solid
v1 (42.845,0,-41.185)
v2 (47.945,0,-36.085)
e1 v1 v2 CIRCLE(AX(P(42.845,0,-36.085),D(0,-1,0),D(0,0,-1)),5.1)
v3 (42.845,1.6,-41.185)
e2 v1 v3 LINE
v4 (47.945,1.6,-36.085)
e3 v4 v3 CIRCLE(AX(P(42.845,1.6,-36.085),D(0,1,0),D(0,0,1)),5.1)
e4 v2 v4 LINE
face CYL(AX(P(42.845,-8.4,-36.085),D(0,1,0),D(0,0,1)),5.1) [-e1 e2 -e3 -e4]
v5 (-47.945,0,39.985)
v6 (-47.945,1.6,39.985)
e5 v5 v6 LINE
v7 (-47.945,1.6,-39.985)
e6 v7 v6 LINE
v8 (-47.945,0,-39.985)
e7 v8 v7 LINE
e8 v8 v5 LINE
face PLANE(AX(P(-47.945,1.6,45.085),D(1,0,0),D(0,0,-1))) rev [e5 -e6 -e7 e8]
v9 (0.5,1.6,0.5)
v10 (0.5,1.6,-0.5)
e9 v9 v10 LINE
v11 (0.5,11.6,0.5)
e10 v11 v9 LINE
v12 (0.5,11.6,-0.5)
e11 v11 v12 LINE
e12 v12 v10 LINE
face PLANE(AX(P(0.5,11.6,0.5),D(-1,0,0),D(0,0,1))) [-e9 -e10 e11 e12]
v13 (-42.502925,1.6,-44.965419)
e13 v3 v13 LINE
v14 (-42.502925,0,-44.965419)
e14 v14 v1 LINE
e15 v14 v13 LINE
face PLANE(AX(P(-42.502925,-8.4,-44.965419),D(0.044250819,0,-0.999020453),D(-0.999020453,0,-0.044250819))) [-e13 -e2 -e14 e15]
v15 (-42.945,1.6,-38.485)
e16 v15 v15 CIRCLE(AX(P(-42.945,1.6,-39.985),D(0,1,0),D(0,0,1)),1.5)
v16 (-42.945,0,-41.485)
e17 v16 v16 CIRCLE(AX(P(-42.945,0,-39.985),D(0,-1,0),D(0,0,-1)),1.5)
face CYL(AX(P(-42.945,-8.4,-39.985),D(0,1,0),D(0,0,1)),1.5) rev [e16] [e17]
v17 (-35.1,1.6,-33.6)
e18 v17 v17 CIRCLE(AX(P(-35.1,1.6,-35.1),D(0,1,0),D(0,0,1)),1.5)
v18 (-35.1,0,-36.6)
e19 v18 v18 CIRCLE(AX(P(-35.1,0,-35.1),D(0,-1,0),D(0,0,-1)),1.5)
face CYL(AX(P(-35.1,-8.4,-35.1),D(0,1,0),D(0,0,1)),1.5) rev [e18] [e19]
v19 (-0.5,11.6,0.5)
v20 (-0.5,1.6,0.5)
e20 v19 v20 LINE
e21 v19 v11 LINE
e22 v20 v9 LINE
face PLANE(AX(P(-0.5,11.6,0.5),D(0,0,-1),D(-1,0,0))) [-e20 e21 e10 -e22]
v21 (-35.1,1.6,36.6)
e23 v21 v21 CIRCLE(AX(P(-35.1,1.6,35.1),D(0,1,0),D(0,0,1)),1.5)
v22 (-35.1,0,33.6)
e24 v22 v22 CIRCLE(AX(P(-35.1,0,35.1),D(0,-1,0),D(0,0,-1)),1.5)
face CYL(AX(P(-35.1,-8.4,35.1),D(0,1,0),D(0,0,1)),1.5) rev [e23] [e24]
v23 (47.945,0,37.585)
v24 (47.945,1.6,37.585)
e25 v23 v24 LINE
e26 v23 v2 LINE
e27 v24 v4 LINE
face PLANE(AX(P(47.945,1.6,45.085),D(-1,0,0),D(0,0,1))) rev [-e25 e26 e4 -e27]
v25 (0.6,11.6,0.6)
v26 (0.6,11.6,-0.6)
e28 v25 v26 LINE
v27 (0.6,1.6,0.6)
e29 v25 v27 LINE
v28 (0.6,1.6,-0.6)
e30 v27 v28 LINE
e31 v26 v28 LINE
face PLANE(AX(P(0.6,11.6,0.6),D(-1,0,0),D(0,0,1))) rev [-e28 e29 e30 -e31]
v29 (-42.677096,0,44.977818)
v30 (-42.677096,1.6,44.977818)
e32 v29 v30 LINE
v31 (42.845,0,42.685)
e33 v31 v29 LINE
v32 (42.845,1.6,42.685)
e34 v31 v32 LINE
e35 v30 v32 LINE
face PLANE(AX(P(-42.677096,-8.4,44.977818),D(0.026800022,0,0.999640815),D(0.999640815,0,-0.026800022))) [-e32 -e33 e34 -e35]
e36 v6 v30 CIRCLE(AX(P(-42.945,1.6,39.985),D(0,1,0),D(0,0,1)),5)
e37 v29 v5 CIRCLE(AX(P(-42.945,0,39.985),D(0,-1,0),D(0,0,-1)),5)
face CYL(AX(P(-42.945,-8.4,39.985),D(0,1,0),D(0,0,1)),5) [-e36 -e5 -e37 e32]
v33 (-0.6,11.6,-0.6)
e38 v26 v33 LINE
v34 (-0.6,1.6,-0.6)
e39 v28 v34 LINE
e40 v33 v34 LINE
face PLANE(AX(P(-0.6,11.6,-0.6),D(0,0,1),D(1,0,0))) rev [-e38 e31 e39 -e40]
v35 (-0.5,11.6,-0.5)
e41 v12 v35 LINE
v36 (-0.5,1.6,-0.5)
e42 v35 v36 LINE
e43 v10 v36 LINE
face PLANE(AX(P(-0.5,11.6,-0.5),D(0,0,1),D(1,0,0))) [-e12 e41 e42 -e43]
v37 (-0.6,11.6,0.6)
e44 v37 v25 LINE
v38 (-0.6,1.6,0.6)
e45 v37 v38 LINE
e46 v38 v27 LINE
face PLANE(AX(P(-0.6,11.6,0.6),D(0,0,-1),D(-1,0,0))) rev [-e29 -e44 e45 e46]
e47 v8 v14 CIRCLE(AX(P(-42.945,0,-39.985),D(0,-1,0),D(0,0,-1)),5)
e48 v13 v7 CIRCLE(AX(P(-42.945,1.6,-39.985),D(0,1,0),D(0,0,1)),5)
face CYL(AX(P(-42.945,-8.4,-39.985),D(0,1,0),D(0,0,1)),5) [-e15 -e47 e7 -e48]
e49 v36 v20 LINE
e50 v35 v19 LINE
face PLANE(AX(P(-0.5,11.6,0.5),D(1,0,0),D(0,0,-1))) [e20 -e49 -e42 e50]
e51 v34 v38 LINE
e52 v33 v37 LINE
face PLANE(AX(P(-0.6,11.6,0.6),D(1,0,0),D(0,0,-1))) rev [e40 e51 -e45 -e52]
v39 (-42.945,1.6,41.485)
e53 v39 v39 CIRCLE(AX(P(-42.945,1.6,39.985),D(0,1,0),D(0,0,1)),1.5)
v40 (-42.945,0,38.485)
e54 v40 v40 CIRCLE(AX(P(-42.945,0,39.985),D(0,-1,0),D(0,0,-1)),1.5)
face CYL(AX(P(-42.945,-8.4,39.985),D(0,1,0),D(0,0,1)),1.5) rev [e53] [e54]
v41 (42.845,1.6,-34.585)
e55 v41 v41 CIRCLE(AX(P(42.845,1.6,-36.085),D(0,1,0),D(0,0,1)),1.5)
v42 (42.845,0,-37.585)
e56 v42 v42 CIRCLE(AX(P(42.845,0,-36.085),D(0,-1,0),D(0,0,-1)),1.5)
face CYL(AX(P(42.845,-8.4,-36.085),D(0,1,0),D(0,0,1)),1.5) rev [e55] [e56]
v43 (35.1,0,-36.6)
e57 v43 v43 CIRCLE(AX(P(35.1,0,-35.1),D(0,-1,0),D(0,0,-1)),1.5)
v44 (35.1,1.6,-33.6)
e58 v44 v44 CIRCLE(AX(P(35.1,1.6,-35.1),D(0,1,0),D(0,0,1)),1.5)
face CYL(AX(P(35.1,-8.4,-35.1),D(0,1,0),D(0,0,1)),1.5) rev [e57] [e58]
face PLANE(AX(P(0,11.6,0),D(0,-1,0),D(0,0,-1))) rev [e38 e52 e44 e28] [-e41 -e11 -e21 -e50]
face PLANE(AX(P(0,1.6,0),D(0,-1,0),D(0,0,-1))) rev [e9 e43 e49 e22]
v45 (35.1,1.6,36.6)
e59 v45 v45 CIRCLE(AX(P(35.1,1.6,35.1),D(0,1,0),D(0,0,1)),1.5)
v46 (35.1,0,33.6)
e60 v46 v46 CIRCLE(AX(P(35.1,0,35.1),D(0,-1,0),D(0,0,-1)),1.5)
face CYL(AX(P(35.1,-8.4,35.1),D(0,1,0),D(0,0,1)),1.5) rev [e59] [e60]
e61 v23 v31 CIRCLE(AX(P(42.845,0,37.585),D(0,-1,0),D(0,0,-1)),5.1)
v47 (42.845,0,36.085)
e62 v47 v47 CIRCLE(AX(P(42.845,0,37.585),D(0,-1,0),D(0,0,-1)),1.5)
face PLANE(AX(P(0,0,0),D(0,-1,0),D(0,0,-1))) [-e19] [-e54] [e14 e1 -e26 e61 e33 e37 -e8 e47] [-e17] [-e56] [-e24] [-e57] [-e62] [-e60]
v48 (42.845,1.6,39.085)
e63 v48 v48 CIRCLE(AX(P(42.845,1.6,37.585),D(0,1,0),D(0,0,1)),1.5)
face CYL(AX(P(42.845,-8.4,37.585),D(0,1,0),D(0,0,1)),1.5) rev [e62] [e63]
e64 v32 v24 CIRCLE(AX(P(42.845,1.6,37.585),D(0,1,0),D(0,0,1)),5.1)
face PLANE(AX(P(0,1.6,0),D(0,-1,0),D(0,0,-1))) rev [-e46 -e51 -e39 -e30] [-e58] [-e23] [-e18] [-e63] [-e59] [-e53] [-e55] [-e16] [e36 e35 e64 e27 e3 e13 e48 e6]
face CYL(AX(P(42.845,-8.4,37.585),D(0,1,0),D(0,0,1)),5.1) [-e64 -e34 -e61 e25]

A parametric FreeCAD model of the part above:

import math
import FreeCAD as App
import Part
import Sketcher

V = App.Vector

doc = App.newDocument("Part")
body = doc.addObject("PartDesign::Body", "Body")

# Sketch on XZ plane
sketch1 = body.newObject("Sketcher::SketchObject", "Sketch")
sketch1.AttachmentSupport = (doc.getObject("XZ_Plane"), [""])
sketch1.MapMode = "FlatFace"
sketch1.addGeometry([
    Part.LineSegment(V(-47.945, -45.085, 0), V(-47.945, 45.085, 0)),
    Part.LineSegment(V(-47.945, 45.085, 0), V(47.945, 45.085, 0)),
    Part.LineSegment(V(47.945, 45.085, 0), V(47.945, -45.085, 0)),
    Part.LineSegment(V(47.945, -45.085, 0), V(-47.945, -45.085, 0)),
], False)
sketch1.addConstraint([
    Sketcher.Constraint("Coincident", 0, 2, 1, 1),
    Sketcher.Constraint("Coincident", 1, 2, 2, 1),
    Sketcher.Constraint("Coincident", 2, 2, 3, 1),
    Sketcher.Constraint("Coincident", 3, 2, 0, 1),
    Sketcher.Constraint("Vertical", 0),
    Sketcher.Constraint("Horizontal", 1),
    Sketcher.Constraint("Vertical", 2),
    Sketcher.Constraint("Horizontal", 3),
    Sketcher.Constraint("Symmetric", 0, 2, 2, 2, -1, 1),
    Sketcher.Constraint("DistanceX", 1, 1, 1, 2, 95.89),
    Sketcher.Constraint("DistanceY", 0, 1, 0, 2, 90.17),
])
pad1 = body.newObject("PartDesign::Pad", "Pad")
pad1.Profile = sketch1
pad1.Length = 1.6
pad1.Reversed = True

# Sketch on XZ plane
sketch2 = body.newObject("Sketcher::SketchObject", "Sketch001")
sketch2.AttachmentSupport = (doc.getObject("XZ_Plane"), [""])
sketch2.MapMode = "FlatFace"
sketch2.AttachmentOffset = App.Placement(V(0, 0, -1.6), App.Rotation())
sketch2.addGeometry([
    Part.Circle(V(42.845, -36.085, 0), V(0, 0, 1), 1.5),
    Part.Circle(V(42.845, 37.585, 0), V(0, 0, 1), 1.5),
    Part.Circle(V(-42.945, 39.985, 0), V(0, 0, 1), 1.5),
    Part.Circle(V(-42.945, -39.985, 0), V(0, 0, 1), 1.5),
], False)
sketch2.addConstraint([
    Sketcher.Constraint("Equal", 0, 1),
    Sketcher.Constraint("Equal", 1, 2),
    Sketcher.Constraint("Equal", 2, 3),
    Sketcher.Constraint("Symmetric", 2, 3, 3, 3, -1),
    Sketcher.Constraint("Vertical", 0, 3, 1, 3),
    Sketcher.Constraint("Diameter", 0, 3.0),
    Sketcher.Constraint("DistanceY", 1, 3, 2, 3, 2.4),
    Sketcher.Constraint("DistanceY", 3, 3, 0, 3, 3.9),
    Sketcher.Constraint("DistanceY", 0, 3, 1, 3, 73.67),
    Sketcher.Constraint("DistanceX", 2, 3, 1, 3, 85.79),
    Sketcher.Constraint("DistanceX", -1, 1, 0, 3, 42.845),
])
pocket1 = body.newObject("PartDesign::Pocket", "Pocket")
pocket1.Profile = sketch2
pocket1.Length = 10
pocket1.Reversed = True

# Sketch on XZ plane
sketch3 = body.newObject("Sketcher::SketchObject", "Sketch002")
sketch3.AttachmentSupport = (doc.getObject("XZ_Plane"), [""])
sketch3.MapMode = "FlatFace"
sketch3.AttachmentOffset = App.Placement(V(0, 0, -1.6), App.Rotation())
sketch3.addGeometry([
    Part.LineSegment(V(-0.6, -0.6, 0), V(-0.6, 0.6, 0)),  # 0
    Part.LineSegment(V(-0.6, 0.6, 0), V(0.6, 0.6, 0)),  # 1
    Part.LineSegment(V(0.6, 0.6, 0), V(0.6, -0.6, 0)),  # 2
    Part.LineSegment(V(0.6, -0.6, 0), V(-0.6, -0.6, 0)),  # 3
    Part.LineSegment(V(0.5, 0.5, 0), V(-0.5, 0.5, 0)),  # 4
    Part.LineSegment(V(-0.5, 0.5, 0), V(-0.5, -0.5, 0)),  # 5
    Part.LineSegment(V(-0.5, -0.5, 0), V(0.5, -0.5, 0)),  # 6
    Part.LineSegment(V(0.5, -0.5, 0), V(0.5, 0.5, 0)),  # 7
], False)
sketch3.addConstraint([
    Sketcher.Constraint("Coincident", 0, 2, 1, 1),
    Sketcher.Constraint("Coincident", 1, 2, 2, 1),
    Sketcher.Constraint("Coincident", 2, 2, 3, 1),
    Sketcher.Constraint("Coincident", 3, 2, 0, 1),
    Sketcher.Constraint("Coincident", 4, 2, 5, 1),
    Sketcher.Constraint("Coincident", 5, 2, 6, 1),
    Sketcher.Constraint("Coincident", 6, 2, 7, 1),
    Sketcher.Constraint("Coincident", 7, 2, 4, 1),
    Sketcher.Constraint("Vertical", 0),
    Sketcher.Constraint("Horizontal", 1),
    Sketcher.Constraint("Vertical", 2),
    Sketcher.Constraint("Horizontal", 3),
    Sketcher.Constraint("Horizontal", 4),
    Sketcher.Constraint("Vertical", 5),
    Sketcher.Constraint("Horizontal", 6),
    Sketcher.Constraint("Vertical", 7),
    Sketcher.Constraint("Symmetric", 0, 2, 2, 2, -1, 1),
    Sketcher.Constraint("Symmetric", 4, 2, 6, 2, -1, 1),
    Sketcher.Constraint("Equal", 3, 0),
    Sketcher.Constraint("Equal", 6, 5),
    Sketcher.Constraint("DistanceX", 4, 2, 4, 1, 1.0),
    Sketcher.Constraint("DistanceX", 1, 1, 1, 2, 1.2),
])
pad2 = body.newObject("PartDesign::Pad", "Pad001")
pad2.Profile = sketch3
pad2.Length = 10
pad2.Reversed = True

# Sketch on XZ plane
sketch4 = body.newObject("Sketcher::SketchObject", "Sketch003")
sketch4.AttachmentSupport = (doc.getObject("XZ_Plane"), [""])
sketch4.MapMode = "FlatFace"
sketch4.AttachmentOffset = App.Placement(V(0, 0, -1.6), App.Rotation())
sketch4.addGeometry([
    Part.LineSegment(V(-62.159, -59.299, 0), V(-62.159, 59.299, 0)),  # 0
    Part.LineSegment(V(-62.159, 59.299, 0), V(62.159, 59.299, 0)),  # 1
    Part.LineSegment(V(62.159, 59.299, 0), V(62.159, -59.299, 0)),  # 2
    Part.LineSegment(V(62.159, -59.299, 0), V(-62.159, -59.299, 0)),  # 3
    Part.LineSegment(V(42.845, 42.685, 0), V(-42.677096, 44.977818, 0)),  # 4
    Part.ArcOfCircle(Part.Circle(V(-42.945, 39.985, 0), V(0, 0, 1), 5), math.radians(86.928576), math.radians(180)),  # 5
    Part.LineSegment(V(-47.945, 39.985, 0), V(-47.945, -39.985, 0)),  # 6
    Part.ArcOfCircle(Part.Circle(V(-42.945, -39.985, 0), V(0, 0, 1), 5), math.radians(180), math.radians(275.072427)),  # 7
    Part.LineSegment(V(-42.502925, -44.965419, 0), V(42.845, -41.185, 0)),  # 8
    Part.ArcOfCircle(Part.Circle(V(42.845, -36.085, 0), V(0, 0, 1), 5.1), math.radians(-90), math.radians(0)),  # 9
    Part.LineSegment(V(47.945, -36.085, 0), V(47.945, 37.585, 0)),  # 10
    Part.ArcOfCircle(Part.Circle(V(42.845, 37.585, 0), V(0, 0, 1), 5.1), math.radians(0), math.radians(90)),  # 11
], False)
sketch4.addConstraint([
    Sketcher.Constraint("Coincident", 0, 2, 1, 1),
    Sketcher.Constraint("Coincident", 1, 2, 2, 1),
    Sketcher.Constraint("Coincident", 2, 2, 3, 1),
    Sketcher.Constraint("Coincident", 3, 2, 0, 1),
    Sketcher.Constraint("Coincident", 4, 2, 5, 1),
    Sketcher.Constraint("Tangent", 5, 2, 6, 1),
    Sketcher.Constraint("Tangent", 6, 2, 7, 1),
    Sketcher.Constraint("Coincident", 7, 2, 8, 1),
    Sketcher.Constraint("Coincident", 8, 2, 9, 1),
    Sketcher.Constraint("Tangent", 9, 2, 10, 1),
    Sketcher.Constraint("Tangent", 10, 2, 11, 1),
    Sketcher.Constraint("Coincident", 11, 2, 4, 1),
    Sketcher.Constraint("Vertical", 0),
    Sketcher.Constraint("Horizontal", 1),
    Sketcher.Constraint("Vertical", 2),
    Sketcher.Constraint("Horizontal", 3),
    Sketcher.Constraint("Vertical", 6),
    Sketcher.Constraint("Vertical", 10),
    Sketcher.Constraint("Equal", 5, 7),
    Sketcher.Constraint("Equal", 9, 11),
    Sketcher.Constraint("Symmetric", 0, 2, 2, 2, -1, 1),
    Sketcher.Constraint("Vertical", 11, 3, 8, 2),
    Sketcher.Constraint("Vertical", 8, 2, 11, 2),
    Sketcher.Constraint("Radius", 5, 5.0),
    Sketcher.Constraint("Radius", 9, 5.1),
    Sketcher.Constraint("DistanceY", 6, 2, 6, 1, 79.97),
    Sketcher.Constraint("DistanceY", 10, 1, 10, 2, 73.67),
    Sketcher.Constraint("DistanceY", 7, 3, 9, 3, 3.9),
    Sketcher.Constraint("DistanceX", 1, 1, 1, 2, 124.318),
    Sketcher.Constraint("DistanceY", 0, 1, 0, 2, 118.598),
    Sketcher.Constraint("DistanceX", 7, 3, 9, 3, 85.79),
    Sketcher.Constraint("DistanceX", 5, 3, -1, 1, 42.945),
    Sketcher.Constraint("DistanceY", -1, 1, 5, 3, 39.985),
    Sketcher.Constraint("Distance", 8, 85.43161),
    Sketcher.Constraint("Distance", 4, 85.552825),
])
pocket2 = body.newObject("PartDesign::Pocket", "Pocket001")
pocket2.Profile = sketch4
pocket2.Length = 10
pocket2.Reversed = True

# Sketch on XZ plane
sketch5 = body.newObject("Sketcher::SketchObject", "Sketch004")
sketch5.AttachmentSupport = (doc.getObject("XZ_Plane"), [""])
sketch5.MapMode = "FlatFace"
sketch5.AttachmentOffset = App.Placement(V(0, 0, -1.6), App.Rotation())
sketch5.addGeometry([
    Part.Circle(V(-35.1, -35.1, 0), V(0, 0, 1), 1.5),
    Part.Circle(V(35.1, -35.1, 0), V(0, 0, 1), 1.5),
    Part.Circle(V(35.1, 35.1, 0), V(0, 0, 1), 1.5),
    Part.Circle(V(-35.1, 35.1, 0), V(0, 0, 1), 1.5),
], False)
sketch5.addConstraint([
    Sketcher.Constraint("Equal", 0, 1),
    Sketcher.Constraint("Equal", 1, 2),
    Sketcher.Constraint("Equal", 2, 3),
    Sketcher.Constraint("Symmetric", 0, 3, 2, 3, -1, 1),
    Sketcher.Constraint("Symmetric", 1, 3, 3, 3, -1, 1),
    Sketcher.Constraint("Symmetric", 0, 3, 1, 3, -2),
    Sketcher.Constraint("Diameter", 0, 3.0),
    Sketcher.Constraint("DistanceX", 0, 3, -1, 1, 35.1),
    Sketcher.Constraint("DistanceY", 0, 3, -1, 1, 35.1),
])
pocket3 = body.newObject("PartDesign::Pocket", "Pocket002")
pocket3.Profile = sketch5
pocket3.Length = 10
pocket3.Reversed = True

doc.recompute()
